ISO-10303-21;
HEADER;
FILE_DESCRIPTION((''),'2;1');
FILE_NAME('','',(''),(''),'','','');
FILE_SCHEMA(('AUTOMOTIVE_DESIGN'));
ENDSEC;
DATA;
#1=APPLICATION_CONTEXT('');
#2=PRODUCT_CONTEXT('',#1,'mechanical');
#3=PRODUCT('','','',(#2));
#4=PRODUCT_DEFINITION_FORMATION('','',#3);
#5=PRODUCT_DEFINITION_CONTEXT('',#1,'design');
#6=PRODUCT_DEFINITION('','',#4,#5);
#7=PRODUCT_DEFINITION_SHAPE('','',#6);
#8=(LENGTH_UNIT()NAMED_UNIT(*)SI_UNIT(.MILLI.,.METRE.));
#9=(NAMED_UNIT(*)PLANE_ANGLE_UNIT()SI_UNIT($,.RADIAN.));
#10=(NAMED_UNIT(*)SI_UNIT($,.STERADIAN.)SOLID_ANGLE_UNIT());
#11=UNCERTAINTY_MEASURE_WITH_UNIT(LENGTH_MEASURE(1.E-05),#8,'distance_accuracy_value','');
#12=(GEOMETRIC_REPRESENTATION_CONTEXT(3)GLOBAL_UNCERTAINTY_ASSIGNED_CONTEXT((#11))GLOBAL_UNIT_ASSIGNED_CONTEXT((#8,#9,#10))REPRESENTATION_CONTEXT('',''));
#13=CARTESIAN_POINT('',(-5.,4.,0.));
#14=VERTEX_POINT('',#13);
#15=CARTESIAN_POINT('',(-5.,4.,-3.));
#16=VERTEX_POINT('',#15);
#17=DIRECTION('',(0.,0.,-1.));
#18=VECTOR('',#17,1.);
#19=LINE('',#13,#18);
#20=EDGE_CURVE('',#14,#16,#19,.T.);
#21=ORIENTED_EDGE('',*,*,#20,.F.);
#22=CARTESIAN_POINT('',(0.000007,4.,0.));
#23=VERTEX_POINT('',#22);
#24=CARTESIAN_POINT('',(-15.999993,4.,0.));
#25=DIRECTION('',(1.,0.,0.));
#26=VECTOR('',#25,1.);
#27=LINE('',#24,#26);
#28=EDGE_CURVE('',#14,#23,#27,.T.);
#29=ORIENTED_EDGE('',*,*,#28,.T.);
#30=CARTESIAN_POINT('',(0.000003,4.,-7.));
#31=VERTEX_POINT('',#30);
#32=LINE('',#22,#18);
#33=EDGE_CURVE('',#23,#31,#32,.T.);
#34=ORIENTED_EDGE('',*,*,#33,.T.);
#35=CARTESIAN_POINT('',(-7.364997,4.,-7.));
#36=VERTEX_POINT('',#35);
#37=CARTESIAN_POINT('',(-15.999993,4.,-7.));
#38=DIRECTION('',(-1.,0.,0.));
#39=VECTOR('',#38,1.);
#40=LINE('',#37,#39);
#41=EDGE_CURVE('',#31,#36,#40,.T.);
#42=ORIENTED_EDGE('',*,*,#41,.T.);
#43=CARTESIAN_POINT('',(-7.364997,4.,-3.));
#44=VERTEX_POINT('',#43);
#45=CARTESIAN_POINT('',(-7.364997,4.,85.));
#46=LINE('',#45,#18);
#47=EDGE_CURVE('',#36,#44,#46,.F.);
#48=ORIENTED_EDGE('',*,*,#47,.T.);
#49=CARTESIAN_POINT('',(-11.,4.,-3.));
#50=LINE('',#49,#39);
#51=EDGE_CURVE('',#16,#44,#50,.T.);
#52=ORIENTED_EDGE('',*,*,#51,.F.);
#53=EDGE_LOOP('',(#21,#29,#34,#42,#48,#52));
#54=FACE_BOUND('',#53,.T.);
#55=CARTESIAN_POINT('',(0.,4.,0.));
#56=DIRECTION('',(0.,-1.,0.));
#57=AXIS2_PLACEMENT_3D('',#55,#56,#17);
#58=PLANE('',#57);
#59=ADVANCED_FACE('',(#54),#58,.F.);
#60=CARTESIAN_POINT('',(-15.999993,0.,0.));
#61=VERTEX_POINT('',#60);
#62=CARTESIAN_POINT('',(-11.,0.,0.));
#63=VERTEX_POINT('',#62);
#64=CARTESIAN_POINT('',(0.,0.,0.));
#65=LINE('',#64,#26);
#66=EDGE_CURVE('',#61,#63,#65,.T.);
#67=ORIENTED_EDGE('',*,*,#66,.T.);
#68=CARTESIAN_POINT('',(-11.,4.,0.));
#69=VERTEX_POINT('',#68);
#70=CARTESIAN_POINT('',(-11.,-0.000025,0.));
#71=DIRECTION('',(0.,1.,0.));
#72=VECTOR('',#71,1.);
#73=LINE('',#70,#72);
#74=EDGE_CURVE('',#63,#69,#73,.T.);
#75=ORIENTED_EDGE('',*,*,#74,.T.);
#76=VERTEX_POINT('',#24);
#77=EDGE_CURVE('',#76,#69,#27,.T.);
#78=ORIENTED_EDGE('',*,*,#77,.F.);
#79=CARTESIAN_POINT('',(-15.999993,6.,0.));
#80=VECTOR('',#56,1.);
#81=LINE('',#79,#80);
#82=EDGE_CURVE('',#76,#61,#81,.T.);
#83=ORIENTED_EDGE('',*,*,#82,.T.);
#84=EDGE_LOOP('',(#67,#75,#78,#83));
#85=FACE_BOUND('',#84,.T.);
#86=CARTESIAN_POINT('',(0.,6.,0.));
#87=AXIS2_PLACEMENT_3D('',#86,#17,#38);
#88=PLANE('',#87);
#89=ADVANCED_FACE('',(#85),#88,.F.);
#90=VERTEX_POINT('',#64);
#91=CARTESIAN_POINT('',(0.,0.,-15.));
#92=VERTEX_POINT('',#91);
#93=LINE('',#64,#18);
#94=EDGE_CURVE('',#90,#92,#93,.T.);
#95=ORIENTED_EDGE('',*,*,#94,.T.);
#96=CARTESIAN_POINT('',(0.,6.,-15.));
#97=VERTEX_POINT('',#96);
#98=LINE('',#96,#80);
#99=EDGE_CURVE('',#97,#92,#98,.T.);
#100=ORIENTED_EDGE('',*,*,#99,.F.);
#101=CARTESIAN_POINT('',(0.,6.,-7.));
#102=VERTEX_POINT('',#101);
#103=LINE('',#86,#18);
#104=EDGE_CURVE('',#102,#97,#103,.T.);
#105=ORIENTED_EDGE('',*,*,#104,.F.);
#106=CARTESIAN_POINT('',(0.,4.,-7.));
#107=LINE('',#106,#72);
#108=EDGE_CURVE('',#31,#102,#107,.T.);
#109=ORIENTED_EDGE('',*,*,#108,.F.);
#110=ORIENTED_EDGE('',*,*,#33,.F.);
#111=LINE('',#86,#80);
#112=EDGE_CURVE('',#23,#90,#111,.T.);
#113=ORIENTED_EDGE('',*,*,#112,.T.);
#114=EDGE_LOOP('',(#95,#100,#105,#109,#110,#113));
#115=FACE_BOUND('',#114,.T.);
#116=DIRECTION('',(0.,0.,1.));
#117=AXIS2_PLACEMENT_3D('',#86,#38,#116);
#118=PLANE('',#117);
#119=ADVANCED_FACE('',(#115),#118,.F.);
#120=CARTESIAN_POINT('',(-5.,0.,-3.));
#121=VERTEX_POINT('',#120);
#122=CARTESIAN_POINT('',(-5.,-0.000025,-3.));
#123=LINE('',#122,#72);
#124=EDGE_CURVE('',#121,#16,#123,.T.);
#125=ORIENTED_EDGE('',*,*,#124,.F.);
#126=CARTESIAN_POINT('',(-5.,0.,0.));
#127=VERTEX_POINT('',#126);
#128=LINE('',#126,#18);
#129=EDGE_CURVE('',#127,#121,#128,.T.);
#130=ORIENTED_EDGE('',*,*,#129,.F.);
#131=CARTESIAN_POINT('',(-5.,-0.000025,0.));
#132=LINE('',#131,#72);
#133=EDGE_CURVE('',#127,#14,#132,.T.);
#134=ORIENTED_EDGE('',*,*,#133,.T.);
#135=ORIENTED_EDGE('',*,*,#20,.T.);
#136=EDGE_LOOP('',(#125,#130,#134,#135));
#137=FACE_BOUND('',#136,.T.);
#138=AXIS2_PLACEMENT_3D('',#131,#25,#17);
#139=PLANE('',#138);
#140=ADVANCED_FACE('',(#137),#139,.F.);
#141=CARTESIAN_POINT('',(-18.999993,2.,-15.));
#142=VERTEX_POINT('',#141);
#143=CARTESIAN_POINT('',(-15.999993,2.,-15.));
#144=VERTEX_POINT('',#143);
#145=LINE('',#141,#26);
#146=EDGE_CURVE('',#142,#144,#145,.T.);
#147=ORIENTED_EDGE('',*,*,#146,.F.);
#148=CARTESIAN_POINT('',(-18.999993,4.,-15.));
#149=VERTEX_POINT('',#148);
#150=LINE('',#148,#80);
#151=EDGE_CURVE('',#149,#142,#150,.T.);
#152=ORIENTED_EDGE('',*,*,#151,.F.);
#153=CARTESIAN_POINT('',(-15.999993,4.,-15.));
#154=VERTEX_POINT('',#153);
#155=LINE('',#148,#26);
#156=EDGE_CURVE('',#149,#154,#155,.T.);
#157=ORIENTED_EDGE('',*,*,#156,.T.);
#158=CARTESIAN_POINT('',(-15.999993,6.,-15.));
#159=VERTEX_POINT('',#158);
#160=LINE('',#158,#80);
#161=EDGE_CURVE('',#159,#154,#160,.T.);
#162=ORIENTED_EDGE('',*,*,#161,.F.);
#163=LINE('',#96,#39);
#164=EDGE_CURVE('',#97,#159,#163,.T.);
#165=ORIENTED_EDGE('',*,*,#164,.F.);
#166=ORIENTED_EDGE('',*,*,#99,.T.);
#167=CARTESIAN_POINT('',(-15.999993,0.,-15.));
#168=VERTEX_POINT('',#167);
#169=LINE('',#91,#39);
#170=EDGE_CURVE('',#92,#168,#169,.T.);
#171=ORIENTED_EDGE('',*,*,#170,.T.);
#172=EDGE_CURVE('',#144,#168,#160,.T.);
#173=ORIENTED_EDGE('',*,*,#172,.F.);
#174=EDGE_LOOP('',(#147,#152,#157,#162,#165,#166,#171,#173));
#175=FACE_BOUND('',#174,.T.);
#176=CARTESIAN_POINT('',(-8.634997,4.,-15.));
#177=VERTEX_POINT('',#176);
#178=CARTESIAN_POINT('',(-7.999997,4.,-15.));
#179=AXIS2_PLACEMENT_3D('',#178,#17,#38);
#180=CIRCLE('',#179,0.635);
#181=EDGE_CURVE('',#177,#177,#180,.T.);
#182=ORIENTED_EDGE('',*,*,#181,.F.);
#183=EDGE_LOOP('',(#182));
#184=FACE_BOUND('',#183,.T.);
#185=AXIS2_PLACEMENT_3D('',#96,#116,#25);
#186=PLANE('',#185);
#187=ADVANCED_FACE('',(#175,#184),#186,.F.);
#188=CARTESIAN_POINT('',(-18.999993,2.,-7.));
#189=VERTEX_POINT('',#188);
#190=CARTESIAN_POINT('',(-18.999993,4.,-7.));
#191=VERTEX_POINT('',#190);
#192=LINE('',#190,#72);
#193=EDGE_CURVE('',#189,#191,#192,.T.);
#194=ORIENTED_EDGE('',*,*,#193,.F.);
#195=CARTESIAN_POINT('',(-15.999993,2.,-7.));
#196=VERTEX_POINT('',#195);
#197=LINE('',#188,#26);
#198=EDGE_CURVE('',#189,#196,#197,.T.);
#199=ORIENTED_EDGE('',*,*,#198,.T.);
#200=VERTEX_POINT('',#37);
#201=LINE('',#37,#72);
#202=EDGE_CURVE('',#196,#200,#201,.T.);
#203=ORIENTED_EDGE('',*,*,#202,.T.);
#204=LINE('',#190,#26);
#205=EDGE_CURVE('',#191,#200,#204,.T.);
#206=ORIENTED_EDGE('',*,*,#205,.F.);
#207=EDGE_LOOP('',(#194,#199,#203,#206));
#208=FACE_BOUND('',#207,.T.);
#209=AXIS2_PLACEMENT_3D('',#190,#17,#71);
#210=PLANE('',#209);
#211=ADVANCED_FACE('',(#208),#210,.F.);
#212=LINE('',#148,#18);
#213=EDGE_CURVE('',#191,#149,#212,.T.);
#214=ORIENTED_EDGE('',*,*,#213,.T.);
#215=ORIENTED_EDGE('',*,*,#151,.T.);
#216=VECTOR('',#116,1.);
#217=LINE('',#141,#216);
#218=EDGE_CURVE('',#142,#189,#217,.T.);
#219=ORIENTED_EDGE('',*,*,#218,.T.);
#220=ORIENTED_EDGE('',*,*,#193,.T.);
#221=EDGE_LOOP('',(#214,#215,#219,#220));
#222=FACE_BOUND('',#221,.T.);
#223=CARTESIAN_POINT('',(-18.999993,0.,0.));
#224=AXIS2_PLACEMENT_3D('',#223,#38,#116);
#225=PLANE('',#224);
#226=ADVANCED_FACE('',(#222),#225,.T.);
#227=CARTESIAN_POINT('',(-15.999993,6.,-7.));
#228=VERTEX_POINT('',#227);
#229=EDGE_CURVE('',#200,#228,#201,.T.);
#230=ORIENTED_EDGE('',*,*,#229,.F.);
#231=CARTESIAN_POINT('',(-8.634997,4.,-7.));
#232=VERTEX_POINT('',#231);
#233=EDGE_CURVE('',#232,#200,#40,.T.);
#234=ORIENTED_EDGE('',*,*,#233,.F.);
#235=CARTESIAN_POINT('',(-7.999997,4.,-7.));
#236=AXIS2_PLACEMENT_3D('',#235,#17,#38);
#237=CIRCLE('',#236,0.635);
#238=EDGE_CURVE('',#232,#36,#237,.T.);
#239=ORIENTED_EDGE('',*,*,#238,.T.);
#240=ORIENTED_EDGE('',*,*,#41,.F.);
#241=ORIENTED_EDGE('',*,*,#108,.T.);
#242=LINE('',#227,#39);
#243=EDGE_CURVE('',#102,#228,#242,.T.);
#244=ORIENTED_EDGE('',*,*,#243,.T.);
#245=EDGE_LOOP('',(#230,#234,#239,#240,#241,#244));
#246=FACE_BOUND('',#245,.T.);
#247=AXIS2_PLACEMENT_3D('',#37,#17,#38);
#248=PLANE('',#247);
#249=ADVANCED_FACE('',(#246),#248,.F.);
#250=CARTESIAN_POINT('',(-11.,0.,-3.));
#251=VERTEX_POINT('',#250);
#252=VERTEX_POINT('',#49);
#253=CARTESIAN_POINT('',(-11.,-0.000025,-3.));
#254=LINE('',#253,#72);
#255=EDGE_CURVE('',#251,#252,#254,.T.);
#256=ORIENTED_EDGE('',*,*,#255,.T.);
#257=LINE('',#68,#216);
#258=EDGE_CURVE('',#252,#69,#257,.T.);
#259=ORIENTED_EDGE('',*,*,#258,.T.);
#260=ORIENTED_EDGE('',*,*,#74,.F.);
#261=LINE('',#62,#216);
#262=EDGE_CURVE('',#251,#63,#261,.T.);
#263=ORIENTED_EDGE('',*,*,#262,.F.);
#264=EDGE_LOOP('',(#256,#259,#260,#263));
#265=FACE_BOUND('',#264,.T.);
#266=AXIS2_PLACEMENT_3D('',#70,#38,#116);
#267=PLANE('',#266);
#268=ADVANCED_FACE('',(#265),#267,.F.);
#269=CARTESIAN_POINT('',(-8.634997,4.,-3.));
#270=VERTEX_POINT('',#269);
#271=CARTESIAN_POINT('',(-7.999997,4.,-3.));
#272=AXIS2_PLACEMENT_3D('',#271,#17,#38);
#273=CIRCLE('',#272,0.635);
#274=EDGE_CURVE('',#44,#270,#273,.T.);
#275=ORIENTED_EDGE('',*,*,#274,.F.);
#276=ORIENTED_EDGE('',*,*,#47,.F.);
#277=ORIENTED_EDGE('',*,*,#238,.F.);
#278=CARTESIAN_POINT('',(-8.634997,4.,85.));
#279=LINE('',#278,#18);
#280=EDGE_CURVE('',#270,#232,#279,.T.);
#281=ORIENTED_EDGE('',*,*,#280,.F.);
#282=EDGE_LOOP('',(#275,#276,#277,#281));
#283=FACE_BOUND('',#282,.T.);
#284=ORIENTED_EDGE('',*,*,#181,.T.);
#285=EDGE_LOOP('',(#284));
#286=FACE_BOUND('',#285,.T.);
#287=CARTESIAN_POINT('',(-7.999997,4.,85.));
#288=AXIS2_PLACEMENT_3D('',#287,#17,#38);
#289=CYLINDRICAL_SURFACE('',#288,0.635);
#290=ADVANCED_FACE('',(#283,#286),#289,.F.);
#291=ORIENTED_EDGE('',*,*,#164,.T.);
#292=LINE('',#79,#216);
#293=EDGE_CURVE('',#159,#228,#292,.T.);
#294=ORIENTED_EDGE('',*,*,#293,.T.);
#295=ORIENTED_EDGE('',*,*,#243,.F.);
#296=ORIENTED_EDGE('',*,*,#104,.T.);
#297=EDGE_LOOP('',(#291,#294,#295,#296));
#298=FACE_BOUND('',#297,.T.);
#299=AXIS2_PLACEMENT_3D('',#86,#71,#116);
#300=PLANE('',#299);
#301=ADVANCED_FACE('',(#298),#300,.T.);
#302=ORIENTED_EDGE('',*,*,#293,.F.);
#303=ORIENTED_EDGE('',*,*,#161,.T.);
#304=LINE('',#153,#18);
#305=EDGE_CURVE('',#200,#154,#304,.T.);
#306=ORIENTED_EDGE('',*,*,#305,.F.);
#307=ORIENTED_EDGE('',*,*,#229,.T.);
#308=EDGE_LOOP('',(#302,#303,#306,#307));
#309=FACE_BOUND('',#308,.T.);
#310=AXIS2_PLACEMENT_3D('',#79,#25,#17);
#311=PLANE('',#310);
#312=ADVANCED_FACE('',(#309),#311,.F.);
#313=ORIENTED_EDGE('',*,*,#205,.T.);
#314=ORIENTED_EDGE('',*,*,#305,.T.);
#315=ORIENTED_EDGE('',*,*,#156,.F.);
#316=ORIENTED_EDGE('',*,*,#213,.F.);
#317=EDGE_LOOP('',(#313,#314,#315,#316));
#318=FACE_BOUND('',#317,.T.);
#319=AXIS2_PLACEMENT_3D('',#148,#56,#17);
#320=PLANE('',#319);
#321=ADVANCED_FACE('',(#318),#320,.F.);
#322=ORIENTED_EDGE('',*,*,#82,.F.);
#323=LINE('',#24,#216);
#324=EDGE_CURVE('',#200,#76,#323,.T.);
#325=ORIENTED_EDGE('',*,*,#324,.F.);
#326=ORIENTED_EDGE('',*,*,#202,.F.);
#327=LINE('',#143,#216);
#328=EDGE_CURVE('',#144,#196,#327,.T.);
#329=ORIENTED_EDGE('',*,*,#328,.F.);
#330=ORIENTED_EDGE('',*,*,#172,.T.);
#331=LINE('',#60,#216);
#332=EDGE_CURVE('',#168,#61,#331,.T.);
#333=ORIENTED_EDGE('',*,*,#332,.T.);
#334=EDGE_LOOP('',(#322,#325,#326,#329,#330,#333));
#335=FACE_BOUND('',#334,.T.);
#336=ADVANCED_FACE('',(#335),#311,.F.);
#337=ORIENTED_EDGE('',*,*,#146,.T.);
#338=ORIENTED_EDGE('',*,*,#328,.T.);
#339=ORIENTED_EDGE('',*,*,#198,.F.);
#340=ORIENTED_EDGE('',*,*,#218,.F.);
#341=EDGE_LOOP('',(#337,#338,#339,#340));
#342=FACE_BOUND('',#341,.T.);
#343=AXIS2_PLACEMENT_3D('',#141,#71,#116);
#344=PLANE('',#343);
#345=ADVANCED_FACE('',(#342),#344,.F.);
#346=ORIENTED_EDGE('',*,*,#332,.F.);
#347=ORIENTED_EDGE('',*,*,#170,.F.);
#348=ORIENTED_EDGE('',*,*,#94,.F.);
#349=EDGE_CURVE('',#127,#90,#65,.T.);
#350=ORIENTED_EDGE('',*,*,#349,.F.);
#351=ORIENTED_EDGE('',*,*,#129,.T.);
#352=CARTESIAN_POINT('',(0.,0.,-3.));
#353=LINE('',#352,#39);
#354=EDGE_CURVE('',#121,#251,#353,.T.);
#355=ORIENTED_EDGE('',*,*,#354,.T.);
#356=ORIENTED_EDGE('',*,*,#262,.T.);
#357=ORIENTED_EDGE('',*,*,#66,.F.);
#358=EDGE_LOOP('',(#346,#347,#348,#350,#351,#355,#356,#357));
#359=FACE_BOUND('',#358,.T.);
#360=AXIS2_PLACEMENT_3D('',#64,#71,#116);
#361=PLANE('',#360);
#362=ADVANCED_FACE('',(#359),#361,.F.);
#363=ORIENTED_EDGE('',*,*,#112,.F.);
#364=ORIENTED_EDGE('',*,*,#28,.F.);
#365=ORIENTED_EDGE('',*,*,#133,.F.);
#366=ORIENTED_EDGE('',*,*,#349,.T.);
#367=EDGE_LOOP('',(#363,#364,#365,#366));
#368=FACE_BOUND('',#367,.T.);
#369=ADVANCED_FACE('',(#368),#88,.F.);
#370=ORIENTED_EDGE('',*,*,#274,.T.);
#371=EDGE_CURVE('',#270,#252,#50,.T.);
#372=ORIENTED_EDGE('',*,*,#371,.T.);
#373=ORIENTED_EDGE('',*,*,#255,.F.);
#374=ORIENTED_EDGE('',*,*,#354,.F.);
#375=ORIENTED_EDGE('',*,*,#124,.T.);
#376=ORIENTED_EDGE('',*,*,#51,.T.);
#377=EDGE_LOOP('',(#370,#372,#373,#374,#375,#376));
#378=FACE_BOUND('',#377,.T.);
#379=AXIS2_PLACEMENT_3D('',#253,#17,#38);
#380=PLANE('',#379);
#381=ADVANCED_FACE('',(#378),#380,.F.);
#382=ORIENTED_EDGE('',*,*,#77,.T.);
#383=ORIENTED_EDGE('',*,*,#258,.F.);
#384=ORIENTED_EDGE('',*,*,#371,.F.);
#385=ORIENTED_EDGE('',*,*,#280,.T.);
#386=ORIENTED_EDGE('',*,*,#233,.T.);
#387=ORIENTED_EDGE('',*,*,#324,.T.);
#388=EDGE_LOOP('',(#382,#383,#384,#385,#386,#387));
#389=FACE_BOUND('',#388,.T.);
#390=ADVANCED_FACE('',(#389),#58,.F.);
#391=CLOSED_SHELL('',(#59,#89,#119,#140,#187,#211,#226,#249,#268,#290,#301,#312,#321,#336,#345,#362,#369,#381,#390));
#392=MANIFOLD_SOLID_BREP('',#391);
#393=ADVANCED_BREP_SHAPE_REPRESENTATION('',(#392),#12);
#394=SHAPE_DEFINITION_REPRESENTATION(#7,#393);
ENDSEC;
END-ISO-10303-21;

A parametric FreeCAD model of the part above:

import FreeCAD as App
import Part
import Sketcher
from FreeCAD import Vector

doc = App.newDocument("Part")
body = doc.addObject("PartDesign::Body", "Body")

# Sketch on XZ plane
sketch1 = doc.addObject("Sketcher::SketchObject", "Sketch")
body.addObject(sketch1)
sketch1.AttachmentSupport = (doc.XZ_Plane, [""])
sketch1.MapMode = "FlatFace"
sketch1.addGeometry(Part.LineSegment(Vector(-15.999993, -15, 0), Vector(-15.999993, 0, 0)), False)
sketch1.addGeometry(Part.LineSegment(Vector(-15.999993, 0, 0), Vector(0, 0, 0)), False)
sketch1.addGeometry(Part.LineSegment(Vector(0, 0, 0), Vector(0, -15, 0)), False)
sketch1.addGeometry(Part.LineSegment(Vector(0, -15, 0), Vector(-15.999993, -15, 0)), False)
sketch1.addConstraint(Sketcher.Constraint("Coincident", 0, 2, 1, 1))
sketch1.addConstraint(Sketcher.Constraint("Coincident", 1, 2, 2, 1))
sketch1.addConstraint(Sketcher.Constraint("Coincident", 2, 2, 3, 1))
sketch1.addConstraint(Sketcher.Constraint("Coincident", 3, 2, 0, 1))
sketch1.addConstraint(Sketcher.Constraint("Vertical", 0))
sketch1.addConstraint(Sketcher.Constraint("Horizontal", 1))
sketch1.addConstraint(Sketcher.Constraint("Vertical", 2))
sketch1.addConstraint(Sketcher.Constraint("Horizontal", 3))
sketch1.addConstraint(Sketcher.Constraint("Coincident", 1, 2, -1, 1))
sketch1.addConstraint(Sketcher.Constraint("DistanceY", 0, 1, 0, 2, 15.0))
sketch1.addConstraint(Sketcher.Constraint("DistanceX", 1, 1, 1, 2, 15.999993))
pad1 = doc.addObject("PartDesign::Pad", "Pad")
body.addObject(pad1)
pad1.Profile = sketch1
pad1.Length = 6
pad1.Reversed = True

# Sketch on XZ plane
sketch2 = doc.addObject("Sketcher::SketchObject", "Sketch001")
body.addObject(sketch2)
sketch2.AttachmentSupport = (doc.XZ_Plane, [""])
sketch2.MapMode = "FlatFace"
sketch2.AttachmentOffset = App.Placement(Vector(0, 0, -6), App.Rotation())
sketch2.addGeometry(Part.LineSegment(Vector(-15.999993, -7, 0), Vector(-15.999993, 0, 0)), False)
sketch2.addGeometry(Part.LineSegment(Vector(-15.999993, 0, 0), Vector(0.000007, 0, 0)), False)
sketch2.addGeometry(Part.LineSegment(Vector(0.000007, 0, 0), Vector(0.000007, -7, 0)), False)
sketch2.addGeometry(Part.LineSegment(Vector(0.000007, -7, 0), Vector(-15.999993, -7, 0)), False)
sketch2.addConstraint(Sketcher.Constraint("Coincident", 0, 2, 1, 1))
sketch2.addConstraint(Sketcher.Constraint("Coincident", 1, 2, 2, 1))
sketch2.addConstraint(Sketcher.Constraint("Coincident", 2, 2, 3, 1))
sketch2.addConstraint(Sketcher.Constraint("Coincident", 3, 2, 0, 1))
sketch2.addConstraint(Sketcher.Constraint("Vertical", 0))
sketch2.addConstraint(Sketcher.Constraint("Horizontal", 1))
sketch2.addConstraint(Sketcher.Constraint("Vertical", 2))
sketch2.addConstraint(Sketcher.Constraint("Horizontal", 3))
sketch2.addConstraint(Sketcher.Constraint("Coincident", 1, 2, -1, 1))
sketch2.addConstraint(Sketcher.Constraint("DistanceX", 1, 1, 1, 2, 16.0))
sketch2.addConstraint(Sketcher.Constraint("DistanceY", 0, 1, 0, 2, 7.0))
pocket1 = doc.addObject("PartDesign::Pocket", "Pocket")
body.addObject(pocket1)
pocket1.Profile = sketch2
pocket1.Length = 2
pocket1.Reversed = True

# Sketch on XZ plane
sketch3 = doc.addObject("Sketcher::SketchObject", "Sketch002")
body.addObject(sketch3)
sketch3.AttachmentSupport = (doc.XZ_Plane, [""])
sketch3.MapMode = "FlatFace"
sketch3.AttachmentOffset = App.Placement(Vector(0, 0, -4), App.Rotation())
sketch3.addGeometry(Part.LineSegment(Vector(-11, -3, 0), Vector(-11, 0, 0)), False)
sketch3.addGeometry(Part.LineSegment(Vector(-11, 0, 0), Vector(-5, 0, 0)), False)
sketch3.addGeometry(Part.LineSegment(Vector(-5, 0, 0), Vector(-5, -3, 0)), False)
sketch3.addGeometry(Part.LineSegment(Vector(-5, -3, 0), Vector(-11, -3, 0)), False)
sketch3.addConstraint(Sketcher.Constraint("Coincident", 0, 2, 1, 1))
sketch3.addConstraint(Sketcher.Constraint("Coincident", 1, 2, 2, 1))
sketch3.addConstraint(Sketcher.Constraint("Coincident", 2, 2, 3, 1))
sketch3.addConstraint(Sketcher.Constraint("Coincident", 3, 2, 0, 1))
sketch3.addConstraint(Sketcher.Constraint("Vertical", 0))
sketch3.addConstraint(Sketcher.Constraint("Horizontal", 1))
sketch3.addConstraint(Sketcher.Constraint("Vertical", 2))
sketch3.addConstraint(Sketcher.Constraint("Horizontal", 3))
sketch3.addConstraint(Sketcher.Constraint("PointOnObject", 0, 2, -1))
sketch3.addConstraint(Sketcher.Constraint("DistanceX", 1, 1, 1, 2, 6.0))
sketch3.addConstraint(Sketcher.Constraint("DistanceY", 0, 1, 0, 2, 3.0))
sketch3.addConstraint(Sketcher.Constraint("DistanceX", 0, 2, -1, 1, 11.0))
pocket2 = doc.addObject("PartDesign::Pocket", "Pocket001")
body.addObject(pocket2)
pocket2.Profile = sketch3
pocket2.Type = "ThroughAll"
pocket2.Reversed = True

# Sketch on XY plane
sketch4 = doc.addObject("Sketcher::SketchObject", "Sketch003")
body.addObject(sketch4)
sketch4.AttachmentSupport = (doc.XY_Plane, [""])
sketch4.MapMode = "FlatFace"
sketch4.AttachmentOffset = App.Placement(Vector(0, 0, -15), App.Rotation())
sketch4.addGeometry(Part.Circle(Vector(-7.999997, 4, 0), Vector(0, 0, 1), 0.635), False)
sketch4.addConstraint(Sketcher.Constraint("Diameter", 0, 1.27))
sketch4.addConstraint(Sketcher.Constraint("DistanceY", -1, 1, 0, 3, 4.0))
sketch4.addConstraint(Sketcher.Constraint("DistanceX", 0, 3, -1, 1, 7.999997))
pocket3 = doc.addObject("PartDesign::Pocket", "Pocket002")
body.addObject(pocket3)
pocket3.Profile = sketch4
pocket3.Length = 100
pocket3.Reversed = True

# Sketch on YZ plane
sketch5 = doc.addObject("Sketcher::SketchObject", "Sketch004")
body.addObject(sketch5)
sketch5.AttachmentSupport = (doc.YZ_Plane, [""])
sketch5.MapMode = "FlatFace"
sketch5.AttachmentOffset = App.Placement(Vector(0, 0, -15.999993), App.Rotation())
sketch5.addGeometry(Part.LineSegment(Vector(4, -15, 0), Vector(2, -15, 0)), False)
sketch5.addGeometry(Part.LineSegment(Vector(2, -15, 0), Vector(2, -7, 0)), False)
sketch5.addGeometry(Part.LineSegment(Vector(2, -7, 0), Vector(4, -7, 0)), False)
sketch5.addGeometry(Part.LineSegment(Vector(4, -7, 0), Vector(4, -15, 0)), False)
sketch5.addConstraint(Sketcher.Constraint("Coincident", 0, 2, 1, 1))
sketch5.addConstraint(Sketcher.Constraint("Coincident", 1, 2, 2, 1))
sketch5.addConstraint(Sketcher.Constraint("Coincident", 2, 2, 3, 1))
sketch5.addConstraint(Sketcher.Constraint("Coincident", 3, 2, 0, 1))
sketch5.addConstraint(Sketcher.Constraint("Horizontal", 0))
sketch5.addConstraint(Sketcher.Constraint("Vertical", 1))
sketch5.addConstraint(Sketcher.Constraint("Horizontal", 2))
sketch5.addConstraint(Sketcher.Constraint("Vertical", 3))
sketch5.addConstraint(Sketcher.Constraint("DistanceX", 0, 2, 0, 1, 2.0))
sketch5.addConstraint(Sketcher.Constraint("DistanceY", 1, 1, 1, 2, 8.0))
sketch5.addConstraint(Sketcher.Constraint("DistanceX", -1, 1, 0, 2, 2.0))
sketch5.addConstraint(Sketcher.Constraint("DistanceY", 0, 2, -1, 1, 15.0))
pad2 = doc.addObject("PartDesign::Pad", "Pad001")
body.addObject(pad2)
pad2.Profile = sketch5
pad2.Length = 3
pad2.Reversed = True

doc.recompute()
